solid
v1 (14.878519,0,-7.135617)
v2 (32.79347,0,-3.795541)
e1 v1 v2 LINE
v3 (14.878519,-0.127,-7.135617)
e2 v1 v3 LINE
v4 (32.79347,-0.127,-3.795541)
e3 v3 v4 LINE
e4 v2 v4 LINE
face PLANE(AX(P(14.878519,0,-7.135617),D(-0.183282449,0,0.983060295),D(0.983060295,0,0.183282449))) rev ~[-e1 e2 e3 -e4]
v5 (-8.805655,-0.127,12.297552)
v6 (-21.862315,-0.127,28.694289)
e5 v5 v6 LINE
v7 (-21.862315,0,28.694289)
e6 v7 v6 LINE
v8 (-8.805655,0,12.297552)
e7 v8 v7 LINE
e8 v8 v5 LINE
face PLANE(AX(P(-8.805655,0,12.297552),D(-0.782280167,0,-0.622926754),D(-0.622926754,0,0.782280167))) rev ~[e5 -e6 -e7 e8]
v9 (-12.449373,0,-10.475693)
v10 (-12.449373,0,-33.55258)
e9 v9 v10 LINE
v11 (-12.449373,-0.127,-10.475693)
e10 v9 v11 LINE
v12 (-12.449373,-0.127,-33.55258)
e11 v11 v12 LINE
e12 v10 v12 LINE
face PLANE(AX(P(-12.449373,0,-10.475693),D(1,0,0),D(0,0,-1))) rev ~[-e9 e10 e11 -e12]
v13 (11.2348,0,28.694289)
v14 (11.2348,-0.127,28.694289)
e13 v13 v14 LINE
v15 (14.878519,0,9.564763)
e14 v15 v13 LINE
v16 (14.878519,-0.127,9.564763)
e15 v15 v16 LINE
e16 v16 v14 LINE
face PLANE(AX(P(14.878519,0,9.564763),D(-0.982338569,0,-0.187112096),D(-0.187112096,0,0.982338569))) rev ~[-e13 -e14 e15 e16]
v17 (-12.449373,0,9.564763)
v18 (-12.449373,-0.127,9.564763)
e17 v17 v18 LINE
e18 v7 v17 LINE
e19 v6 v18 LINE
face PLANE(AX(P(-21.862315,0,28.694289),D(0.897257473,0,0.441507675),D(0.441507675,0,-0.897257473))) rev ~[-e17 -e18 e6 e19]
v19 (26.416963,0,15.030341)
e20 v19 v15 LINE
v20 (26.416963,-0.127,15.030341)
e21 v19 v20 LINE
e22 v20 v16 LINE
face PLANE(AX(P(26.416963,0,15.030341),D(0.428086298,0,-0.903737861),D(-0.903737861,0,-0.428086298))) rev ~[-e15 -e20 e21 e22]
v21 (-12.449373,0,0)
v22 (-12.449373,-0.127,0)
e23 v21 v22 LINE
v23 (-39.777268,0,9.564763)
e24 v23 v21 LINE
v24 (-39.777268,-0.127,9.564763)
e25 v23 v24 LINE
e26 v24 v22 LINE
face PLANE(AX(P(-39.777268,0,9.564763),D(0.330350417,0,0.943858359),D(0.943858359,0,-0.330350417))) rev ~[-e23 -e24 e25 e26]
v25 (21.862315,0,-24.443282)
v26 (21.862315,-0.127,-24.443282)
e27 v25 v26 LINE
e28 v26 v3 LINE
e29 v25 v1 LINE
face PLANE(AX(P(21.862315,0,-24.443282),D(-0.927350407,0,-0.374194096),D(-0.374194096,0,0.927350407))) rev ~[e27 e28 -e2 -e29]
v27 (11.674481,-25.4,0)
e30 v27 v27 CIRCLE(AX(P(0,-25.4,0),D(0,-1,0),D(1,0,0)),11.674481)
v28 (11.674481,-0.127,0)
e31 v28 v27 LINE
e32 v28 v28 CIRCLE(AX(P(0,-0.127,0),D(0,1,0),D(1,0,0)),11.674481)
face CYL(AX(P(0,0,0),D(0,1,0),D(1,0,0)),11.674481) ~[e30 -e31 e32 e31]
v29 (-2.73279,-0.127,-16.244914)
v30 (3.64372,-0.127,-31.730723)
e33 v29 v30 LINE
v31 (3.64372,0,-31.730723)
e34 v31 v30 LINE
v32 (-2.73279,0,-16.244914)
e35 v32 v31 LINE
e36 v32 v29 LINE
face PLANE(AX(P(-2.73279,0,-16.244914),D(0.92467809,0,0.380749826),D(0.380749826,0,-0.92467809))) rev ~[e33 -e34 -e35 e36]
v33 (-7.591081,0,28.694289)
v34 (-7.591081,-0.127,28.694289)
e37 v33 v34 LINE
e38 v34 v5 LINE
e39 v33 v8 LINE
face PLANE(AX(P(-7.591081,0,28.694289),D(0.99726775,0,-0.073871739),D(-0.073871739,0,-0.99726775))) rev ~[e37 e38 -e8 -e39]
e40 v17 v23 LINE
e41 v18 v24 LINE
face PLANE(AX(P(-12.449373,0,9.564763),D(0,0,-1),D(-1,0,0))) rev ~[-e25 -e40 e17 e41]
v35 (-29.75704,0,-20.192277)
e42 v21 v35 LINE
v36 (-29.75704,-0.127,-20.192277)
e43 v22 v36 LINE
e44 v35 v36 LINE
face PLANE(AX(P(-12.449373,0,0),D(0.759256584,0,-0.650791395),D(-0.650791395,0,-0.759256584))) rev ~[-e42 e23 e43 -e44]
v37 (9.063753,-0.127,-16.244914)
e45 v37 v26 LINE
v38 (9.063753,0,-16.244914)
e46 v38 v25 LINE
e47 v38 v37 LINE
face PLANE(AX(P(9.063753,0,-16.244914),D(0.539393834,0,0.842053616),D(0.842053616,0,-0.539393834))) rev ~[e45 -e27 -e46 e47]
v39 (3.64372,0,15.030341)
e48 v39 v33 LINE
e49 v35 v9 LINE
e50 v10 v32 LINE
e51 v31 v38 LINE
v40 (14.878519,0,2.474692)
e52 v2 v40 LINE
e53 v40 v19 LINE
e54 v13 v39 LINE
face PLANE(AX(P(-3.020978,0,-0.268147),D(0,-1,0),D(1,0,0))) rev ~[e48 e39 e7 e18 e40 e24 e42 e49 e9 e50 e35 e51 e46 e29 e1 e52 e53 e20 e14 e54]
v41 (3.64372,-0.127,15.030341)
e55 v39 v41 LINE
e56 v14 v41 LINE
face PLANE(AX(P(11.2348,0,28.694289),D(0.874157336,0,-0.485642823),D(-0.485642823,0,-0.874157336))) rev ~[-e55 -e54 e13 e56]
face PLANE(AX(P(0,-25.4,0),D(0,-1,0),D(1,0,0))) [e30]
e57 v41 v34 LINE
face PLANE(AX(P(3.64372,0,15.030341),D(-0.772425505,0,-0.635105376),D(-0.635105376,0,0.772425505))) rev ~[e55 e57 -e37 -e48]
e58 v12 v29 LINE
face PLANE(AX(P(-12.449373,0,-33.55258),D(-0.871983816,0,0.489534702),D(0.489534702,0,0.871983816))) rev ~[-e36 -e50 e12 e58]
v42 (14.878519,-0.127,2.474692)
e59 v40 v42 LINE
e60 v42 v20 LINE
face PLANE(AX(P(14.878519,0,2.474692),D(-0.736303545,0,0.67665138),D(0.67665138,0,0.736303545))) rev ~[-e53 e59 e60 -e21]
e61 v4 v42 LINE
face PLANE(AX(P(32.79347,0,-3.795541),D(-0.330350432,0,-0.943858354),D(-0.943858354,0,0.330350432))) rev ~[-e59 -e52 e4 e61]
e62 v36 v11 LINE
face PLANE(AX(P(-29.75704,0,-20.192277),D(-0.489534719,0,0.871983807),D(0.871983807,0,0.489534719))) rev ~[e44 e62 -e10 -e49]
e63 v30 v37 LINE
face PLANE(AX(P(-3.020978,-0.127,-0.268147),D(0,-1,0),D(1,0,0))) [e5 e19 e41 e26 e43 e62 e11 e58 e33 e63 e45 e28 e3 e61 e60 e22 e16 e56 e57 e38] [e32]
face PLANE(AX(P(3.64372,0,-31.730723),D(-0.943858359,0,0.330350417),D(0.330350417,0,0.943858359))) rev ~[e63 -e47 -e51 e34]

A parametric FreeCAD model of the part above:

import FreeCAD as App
import Part
import Sketcher

V = App.Vector
Q = App.Units.Quantity


def add_polygon(sketch, points):
    """Adds a closed chain of lines whose ends are joined by coincident constraints."""
    first, n = sketch.GeometryCount, len(points)
    for a, b in zip(points, points[1:] + points[:1]):
        sketch.addGeometry(Part.LineSegment(App.Vector(*a, 0), App.Vector(*b, 0)), False)
    for i in range(n):
        sketch.addConstraint(Sketcher.Constraint("Coincident", first + i, 2, first + (i + 1) % n, 1))

doc = App.newDocument("Part")
body = doc.addObject("PartDesign::Body", "Body")

# Sketch on XZ plane
sketch1 = doc.addObject("Sketcher::SketchObject", "Sketch")
body.addObject(sketch1)
sketch1.AttachmentSupport = (doc.XZ_Plane, [""])
sketch1.MapMode = "FlatFace"
sketch1.addGeometry(Part.Circle(V(0, 0, 0), V(0, 0, 1), 12), False)
sketch1.addConstraint([
    Sketcher.Constraint("Coincident", 0, 3, -1, 1),
    Sketcher.Constraint("Diameter", 0, 23.348962),
])
pad1 = doc.addObject("PartDesign::Pad", "Pad")
body.addObject(pad1)
pad1.Profile = sketch1
pad1.Length = Q("1 in")

# Sketch on XZ plane
sketch2 = doc.addObject("Sketcher::SketchObject", "Sketch001")
body.addObject(sketch2)
sketch2.AttachmentSupport = (doc.XZ_Plane, [""])
sketch2.MapMode = "FlatFace"
add_polygon(sketch2, [(-8, 29), (-9, 12), (-22, 29), (-12, 10), (-40, 10), (-12, 0), (-30, -20), (-12, -10), (-12, -34), (-3, -16), (4, -32), (9, -16), (22, -24), (15, -7), (33, -4), (15, 2), (26, 15), (15, 10), (11, 29), (4, 15)])  # lines 0-19
sketch2.addConstraint([
    Sketcher.Constraint("Horizontal", 3),
    Sketcher.Constraint("Vertical", 7),
    Sketcher.Constraint("PointOnObject", 4, 2, -1),
    Sketcher.Constraint("Perpendicular", 4, 10),
    Sketcher.Constraint("Perpendicular", 10, 14),
    Sketcher.Constraint("Horizontal", 8, 2, 10, 2),
    Sketcher.Constraint("Horizontal", 3, 2, 16, 2),
    Sketcher.Constraint("Horizontal", 1, 2, 17, 2),
    Sketcher.Constraint("Horizontal", 15, 2, 18, 2),
    Sketcher.Constraint("Horizontal", 17, 2, 19, 2),
    Sketcher.Constraint("Vertical", 2, 2, 4, 2),
    Sketcher.Constraint("Vertical", 4, 2, 6, 2),
    Sketcher.Constraint("Vertical", 12, 2, 14, 2),
    Sketcher.Constraint("Vertical", 14, 2, 16, 2),
    Sketcher.Constraint("Vertical", 9, 2, 18, 2),
    Sketcher.Constraint("Equal", 6, 8),
    Sketcher.Constraint("Angle", 6, Q("29.310005 deg")),
    Sketcher.Constraint("Angle", 8, Q("60.689997 deg")),
    Sketcher.Constraint("Distance", 5, 26.5948),
    Sketcher.Constraint("DistanceX", -1, 1, 17, 2, 11.2348),
    Sketcher.Constraint("DistanceX", 9, 2, 12, 2, 11.234799),
    Sketcher.Constraint("DistanceX", 19, 2, 18, 2, 11.234801),
    Sketcher.Constraint("Distance", 0, 16.44166),
    Sketcher.Constraint("Distance", 6, 19.848611),
    Sketcher.Constraint("Distance", 10, 16.40692),
    Sketcher.Constraint("Distance", 14, 18.98055),
    Sketcher.Constraint("DistanceX", 3, 2, 3, 1, 27.327895),
    Sketcher.Constraint("DistanceY", 7, 2, 7, 1, 23.076887),
    Sketcher.Constraint("DistanceY", -1, 1, 1, 2, 28.694289),
    Sketcher.Constraint("DistanceX", 5, 2, -1, 1, 29.75704),
    Sketcher.Constraint("DistanceX", -1, 1, 9, 2, 3.64372),
    Sketcher.Constraint("DistanceY", 11, 2, -1, 1, 24.443282),
    Sketcher.Constraint("DistanceX", -1, 1, 13, 2, 32.79347),
    Sketcher.Constraint("DistanceY", 13, 2, -1, 1, 3.795541),
    Sketcher.Constraint("DistanceY", -1, 1, 15, 2, 15.030341),
    Sketcher.Constraint("DistanceX", 1, 2, 0, 2, 13.05666),
    Sketcher.Constraint("DistanceY", 2, 2, 0, 2, 2.732789),
    Sketcher.Constraint("DistanceX", 10, 2, 11, 2, 12.798562),
    Sketcher.Constraint("DistanceY", 12, 2, 14, 2, 9.610309),
    Sketcher.Constraint("DistanceX", 10, 2, 15, 2, 17.35321),
])
pad2 = doc.addObject("PartDesign::Pad", "Pad001")
body.addObject(pad2)
pad2.Profile = sketch2
pad2.Length = Q("0.005 in")

doc.recompute()
